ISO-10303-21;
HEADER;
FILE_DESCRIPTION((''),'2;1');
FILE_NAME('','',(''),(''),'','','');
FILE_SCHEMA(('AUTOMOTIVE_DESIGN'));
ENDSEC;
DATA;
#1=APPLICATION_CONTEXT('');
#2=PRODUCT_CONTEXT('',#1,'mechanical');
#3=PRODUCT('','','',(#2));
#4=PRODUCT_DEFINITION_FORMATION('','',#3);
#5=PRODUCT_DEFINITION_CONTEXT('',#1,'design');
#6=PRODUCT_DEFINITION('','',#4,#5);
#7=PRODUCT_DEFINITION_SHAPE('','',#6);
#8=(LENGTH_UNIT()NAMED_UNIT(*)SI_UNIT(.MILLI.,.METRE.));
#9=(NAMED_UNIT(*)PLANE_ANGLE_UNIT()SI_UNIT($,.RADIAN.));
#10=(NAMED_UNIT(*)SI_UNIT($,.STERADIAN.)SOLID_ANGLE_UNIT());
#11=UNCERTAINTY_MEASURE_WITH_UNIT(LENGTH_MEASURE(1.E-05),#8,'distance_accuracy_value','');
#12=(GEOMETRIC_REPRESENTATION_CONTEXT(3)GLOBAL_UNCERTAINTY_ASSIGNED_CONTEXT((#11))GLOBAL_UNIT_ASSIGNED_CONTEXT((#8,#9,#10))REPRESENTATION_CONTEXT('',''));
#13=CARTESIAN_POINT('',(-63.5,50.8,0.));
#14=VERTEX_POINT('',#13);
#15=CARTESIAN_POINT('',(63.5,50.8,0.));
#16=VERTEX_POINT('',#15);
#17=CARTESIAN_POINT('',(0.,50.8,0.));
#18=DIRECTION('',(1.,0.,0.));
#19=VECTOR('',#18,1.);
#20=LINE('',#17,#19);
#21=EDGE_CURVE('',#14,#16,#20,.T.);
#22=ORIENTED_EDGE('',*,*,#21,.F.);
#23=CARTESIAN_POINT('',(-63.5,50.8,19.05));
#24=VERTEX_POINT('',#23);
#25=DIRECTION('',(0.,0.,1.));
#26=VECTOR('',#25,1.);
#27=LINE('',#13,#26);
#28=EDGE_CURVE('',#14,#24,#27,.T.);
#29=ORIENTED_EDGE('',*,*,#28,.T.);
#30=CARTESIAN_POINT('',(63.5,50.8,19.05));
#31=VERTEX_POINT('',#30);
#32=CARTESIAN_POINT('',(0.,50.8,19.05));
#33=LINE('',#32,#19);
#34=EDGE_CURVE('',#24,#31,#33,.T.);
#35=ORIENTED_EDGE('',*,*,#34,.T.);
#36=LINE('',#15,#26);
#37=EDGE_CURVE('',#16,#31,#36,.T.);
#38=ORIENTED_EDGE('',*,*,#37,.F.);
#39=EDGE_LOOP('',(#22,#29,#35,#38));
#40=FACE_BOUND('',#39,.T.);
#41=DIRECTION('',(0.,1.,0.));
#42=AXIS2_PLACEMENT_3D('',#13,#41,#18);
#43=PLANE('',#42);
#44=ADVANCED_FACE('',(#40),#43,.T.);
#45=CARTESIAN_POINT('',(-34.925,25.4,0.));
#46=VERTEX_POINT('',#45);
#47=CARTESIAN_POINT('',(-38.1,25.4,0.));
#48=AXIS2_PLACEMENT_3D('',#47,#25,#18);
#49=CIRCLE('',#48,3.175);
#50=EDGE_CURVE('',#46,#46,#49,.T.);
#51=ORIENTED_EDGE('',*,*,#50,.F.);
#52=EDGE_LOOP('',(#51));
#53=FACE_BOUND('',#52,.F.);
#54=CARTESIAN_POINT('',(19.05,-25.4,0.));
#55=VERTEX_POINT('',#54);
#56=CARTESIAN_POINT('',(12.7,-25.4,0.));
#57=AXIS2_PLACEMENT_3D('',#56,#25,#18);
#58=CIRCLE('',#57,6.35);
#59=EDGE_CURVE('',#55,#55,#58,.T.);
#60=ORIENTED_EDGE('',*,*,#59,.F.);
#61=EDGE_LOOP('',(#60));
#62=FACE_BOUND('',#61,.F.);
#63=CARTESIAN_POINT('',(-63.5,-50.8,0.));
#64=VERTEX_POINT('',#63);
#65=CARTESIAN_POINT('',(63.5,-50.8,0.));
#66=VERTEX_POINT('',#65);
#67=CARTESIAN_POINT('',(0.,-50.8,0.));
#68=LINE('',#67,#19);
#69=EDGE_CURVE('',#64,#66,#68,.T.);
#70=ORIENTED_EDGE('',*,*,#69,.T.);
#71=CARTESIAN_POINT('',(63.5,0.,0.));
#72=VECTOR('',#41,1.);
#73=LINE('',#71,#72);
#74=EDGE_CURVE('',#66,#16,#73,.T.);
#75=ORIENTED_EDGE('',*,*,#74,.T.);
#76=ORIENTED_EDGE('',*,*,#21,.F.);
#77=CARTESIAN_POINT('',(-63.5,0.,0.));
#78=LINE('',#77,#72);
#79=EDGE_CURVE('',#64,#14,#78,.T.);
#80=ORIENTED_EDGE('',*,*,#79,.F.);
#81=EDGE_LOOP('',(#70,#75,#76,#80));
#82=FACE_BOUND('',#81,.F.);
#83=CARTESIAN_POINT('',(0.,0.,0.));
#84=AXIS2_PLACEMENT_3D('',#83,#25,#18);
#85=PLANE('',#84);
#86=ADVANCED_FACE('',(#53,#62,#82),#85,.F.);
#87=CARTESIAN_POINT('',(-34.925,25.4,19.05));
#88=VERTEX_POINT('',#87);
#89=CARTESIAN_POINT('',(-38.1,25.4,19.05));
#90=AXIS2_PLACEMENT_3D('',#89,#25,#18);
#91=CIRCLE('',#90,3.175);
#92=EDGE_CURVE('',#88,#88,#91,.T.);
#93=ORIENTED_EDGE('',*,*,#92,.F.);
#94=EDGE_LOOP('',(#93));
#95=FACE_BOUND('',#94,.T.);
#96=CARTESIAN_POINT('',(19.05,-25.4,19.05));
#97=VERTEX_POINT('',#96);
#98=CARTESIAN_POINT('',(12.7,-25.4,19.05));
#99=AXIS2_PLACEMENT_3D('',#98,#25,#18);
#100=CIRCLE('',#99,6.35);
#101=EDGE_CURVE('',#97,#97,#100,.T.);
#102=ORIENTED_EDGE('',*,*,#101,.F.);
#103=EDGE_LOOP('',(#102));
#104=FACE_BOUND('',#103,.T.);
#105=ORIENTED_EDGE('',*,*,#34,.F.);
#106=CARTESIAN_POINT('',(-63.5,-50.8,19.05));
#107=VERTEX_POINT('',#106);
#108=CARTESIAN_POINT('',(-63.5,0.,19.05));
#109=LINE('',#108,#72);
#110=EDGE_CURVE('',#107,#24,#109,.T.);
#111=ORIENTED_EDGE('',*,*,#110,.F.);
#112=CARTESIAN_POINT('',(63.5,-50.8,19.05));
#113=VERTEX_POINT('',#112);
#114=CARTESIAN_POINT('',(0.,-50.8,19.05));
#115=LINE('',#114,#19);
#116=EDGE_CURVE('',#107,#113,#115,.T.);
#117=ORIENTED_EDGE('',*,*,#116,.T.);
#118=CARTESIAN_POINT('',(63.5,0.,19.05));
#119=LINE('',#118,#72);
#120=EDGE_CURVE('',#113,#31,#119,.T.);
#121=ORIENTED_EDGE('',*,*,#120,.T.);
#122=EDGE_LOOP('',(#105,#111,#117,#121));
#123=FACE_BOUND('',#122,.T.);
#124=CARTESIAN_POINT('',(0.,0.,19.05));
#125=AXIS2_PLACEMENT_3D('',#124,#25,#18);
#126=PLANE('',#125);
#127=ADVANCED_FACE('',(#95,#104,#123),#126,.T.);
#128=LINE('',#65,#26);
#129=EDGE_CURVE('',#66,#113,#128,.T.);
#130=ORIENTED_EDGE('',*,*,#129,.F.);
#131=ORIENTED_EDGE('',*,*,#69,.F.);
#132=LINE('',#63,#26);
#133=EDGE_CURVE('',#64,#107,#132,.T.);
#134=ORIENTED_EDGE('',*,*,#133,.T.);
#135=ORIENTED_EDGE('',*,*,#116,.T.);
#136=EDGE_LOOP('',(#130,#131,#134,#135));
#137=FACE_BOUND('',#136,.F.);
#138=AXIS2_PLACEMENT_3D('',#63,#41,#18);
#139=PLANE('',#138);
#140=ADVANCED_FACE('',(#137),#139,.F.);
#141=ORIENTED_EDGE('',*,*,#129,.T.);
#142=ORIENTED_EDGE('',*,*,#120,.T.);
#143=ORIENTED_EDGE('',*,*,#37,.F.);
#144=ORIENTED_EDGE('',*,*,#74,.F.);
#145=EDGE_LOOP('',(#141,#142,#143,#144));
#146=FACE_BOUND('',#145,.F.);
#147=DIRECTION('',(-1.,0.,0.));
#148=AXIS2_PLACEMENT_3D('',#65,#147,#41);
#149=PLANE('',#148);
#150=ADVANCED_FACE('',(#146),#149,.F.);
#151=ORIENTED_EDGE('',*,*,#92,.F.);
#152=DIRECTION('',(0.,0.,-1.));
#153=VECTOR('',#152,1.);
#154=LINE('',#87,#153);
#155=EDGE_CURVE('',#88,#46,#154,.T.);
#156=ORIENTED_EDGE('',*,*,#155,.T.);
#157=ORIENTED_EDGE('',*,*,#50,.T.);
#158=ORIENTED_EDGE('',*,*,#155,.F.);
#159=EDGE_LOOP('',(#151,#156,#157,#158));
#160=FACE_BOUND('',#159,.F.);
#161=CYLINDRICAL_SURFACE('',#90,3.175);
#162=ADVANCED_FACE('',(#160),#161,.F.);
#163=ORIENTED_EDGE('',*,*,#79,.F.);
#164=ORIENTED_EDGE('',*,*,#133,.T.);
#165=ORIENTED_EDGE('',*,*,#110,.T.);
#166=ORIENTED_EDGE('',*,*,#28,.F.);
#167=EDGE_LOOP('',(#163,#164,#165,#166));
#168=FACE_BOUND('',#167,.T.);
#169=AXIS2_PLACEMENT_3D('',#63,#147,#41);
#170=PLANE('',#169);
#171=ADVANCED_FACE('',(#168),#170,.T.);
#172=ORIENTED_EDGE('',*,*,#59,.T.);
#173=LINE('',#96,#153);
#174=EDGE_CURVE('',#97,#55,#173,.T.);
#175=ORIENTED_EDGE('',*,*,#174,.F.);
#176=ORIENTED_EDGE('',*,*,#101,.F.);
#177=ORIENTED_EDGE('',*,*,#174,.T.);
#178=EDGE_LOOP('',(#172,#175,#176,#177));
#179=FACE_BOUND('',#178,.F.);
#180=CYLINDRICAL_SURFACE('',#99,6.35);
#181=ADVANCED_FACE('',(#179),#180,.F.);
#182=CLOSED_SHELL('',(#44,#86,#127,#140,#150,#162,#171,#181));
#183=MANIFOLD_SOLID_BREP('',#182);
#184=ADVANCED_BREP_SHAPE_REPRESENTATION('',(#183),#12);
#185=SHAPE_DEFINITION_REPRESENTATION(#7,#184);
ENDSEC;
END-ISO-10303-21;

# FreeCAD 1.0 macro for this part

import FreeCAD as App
import Part
import Sketcher
from FreeCAD import Vector
Q = App.Units.Quantity

doc = App.newDocument("Part")
params = doc.addObject("Spreadsheet::Sheet", "Params")
for row, (alias, value) in enumerate([
    ("sketch1_width", "5 in"),
    ("sketch1_height", "4 in"),
    ("pad1_length", "0.75 in"),
    ("sketch2_diameter", "0.25 in"),
    ("pocket1_length", "1 in"),
    ("sketch3_diameter", "0.5 in"),
    ("pocket2_length", "1 in"),
], start=1):
    params.set(f"A{row}", alias)
    params.set(f"B{row}", "=" + value)
    params.setAlias(f"B{row}", alias)

body = doc.addObject("PartDesign::Body", "Body")

# Sketch on XY plane
sketch1 = doc.addObject("Sketcher::SketchObject", "Sketch")
body.addObject(sketch1)
sketch1.AttachmentSupport = (doc.XY_Plane, [""])
sketch1.MapMode = "FlatFace"
sketch1.addGeometry(Part.LineSegment(Vector(-64, 51, 0), Vector(-64, -51, 0)), False)
sketch1.addGeometry(Part.LineSegment(Vector(-64, -51, 0), Vector(64, -51, 0)), False)
sketch1.addGeometry(Part.LineSegment(Vector(64, -51, 0), Vector(64, 51, 0)), False)
sketch1.addGeometry(Part.LineSegment(Vector(64, 51, 0), Vector(-64, 51, 0)), False)
sketch1.addConstraint(Sketcher.Constraint("Coincident", 0, 2, 1, 1))
sketch1.addConstraint(Sketcher.Constraint("Coincident", 1, 2, 2, 1))
sketch1.addConstraint(Sketcher.Constraint("Coincident", 2, 2, 3, 1))
sketch1.addConstraint(Sketcher.Constraint("Coincident", 3, 2, 0, 1))
sketch1.addConstraint(Sketcher.Constraint("Vertical", 0))
sketch1.addConstraint(Sketcher.Constraint("Horizontal", 1))
sketch1.addConstraint(Sketcher.Constraint("Vertical", 2))
sketch1.addConstraint(Sketcher.Constraint("Horizontal", 3))
sketch1.addConstraint(Sketcher.Constraint("Symmetric", 0, 2, 2, 2, -1, 1))
sketch1.addConstraint(Sketcher.Constraint("DistanceX", 1, 1, 1, 2, Q("5 in")))
sketch1.addConstraint(Sketcher.Constraint("DistanceY", 0, 2, 0, 1, Q("4 in")))
sketch1.setExpression("Constraints[9]", "Params.sketch1_width")
sketch1.setExpression("Constraints[10]", "Params.sketch1_height")
pad1 = doc.addObject("PartDesign::Pad", "Pad")
body.addObject(pad1)
pad1.Profile = sketch1
pad1.setExpression("Length", "Params.pad1_length")

# Sketch on XY plane
sketch2 = doc.addObject("Sketcher::SketchObject", "Sketch001")
body.addObject(sketch2)
sketch2.AttachmentSupport = (doc.XY_Plane, [""])
sketch2.MapMode = "FlatFace"
sketch2.AttachmentOffset = App.Placement(Vector(0, 0, 0.75 * 25.4), App.Rotation())
sketch2.addGeometry(Part.Circle(Vector(-38.1, 25.4, 0), Vector(0, 0, 1), 3.2), False)
sketch2.addConstraint(Sketcher.Constraint("Diameter", 0, Q("0.25 in")))
sketch2.addConstraint(Sketcher.Constraint("DistanceY", -1, 1, 0, 3, Q("1 in")))
sketch2.addConstraint(Sketcher.Constraint("DistanceX", 0, 3, -1, 1, Q("1.5 in")))
sketch2.setExpression("Constraints[0]", "Params.sketch2_diameter")
pocket1 = doc.addObject("PartDesign::Pocket", "Pocket")
body.addObject(pocket1)
pocket1.Profile = sketch2
pocket1.setExpression("Length", "Params.pocket1_length")

# Sketch on XY plane
sketch3 = doc.addObject("Sketcher::SketchObject", "Sketch002")
body.addObject(sketch3)
sketch3.AttachmentSupport = (doc.XY_Plane, [""])
sketch3.MapMode = "FlatFace"
sketch3.AttachmentOffset = App.Placement(Vector(0, 0, 0.75 * 25.4), App.Rotation())
sketch3.addGeometry(Part.Circle(Vector(13, -25, 0), Vector(0, 0, 1), 6), False)
sketch3.addConstraint(Sketcher.Constraint("Diameter", 0, Q("0.5 in")))
sketch3.addConstraint(Sketcher.Constraint("DistanceY", 0, 3, -1, 1, Q("1 in")))
sketch3.addConstraint(Sketcher.Constraint("DistanceX", -1, 1, 0, 3, Q("0.5 in")))
sketch3.setExpression("Constraints[0]", "Params.sketch3_diameter")
pocket2 = doc.addObject("PartDesign::Pocket", "Pocket001")
body.addObject(pocket2)
pocket2.Profile = sketch3
pocket2.setExpression("Length", "Params.pocket2_length")

doc.recompute()
